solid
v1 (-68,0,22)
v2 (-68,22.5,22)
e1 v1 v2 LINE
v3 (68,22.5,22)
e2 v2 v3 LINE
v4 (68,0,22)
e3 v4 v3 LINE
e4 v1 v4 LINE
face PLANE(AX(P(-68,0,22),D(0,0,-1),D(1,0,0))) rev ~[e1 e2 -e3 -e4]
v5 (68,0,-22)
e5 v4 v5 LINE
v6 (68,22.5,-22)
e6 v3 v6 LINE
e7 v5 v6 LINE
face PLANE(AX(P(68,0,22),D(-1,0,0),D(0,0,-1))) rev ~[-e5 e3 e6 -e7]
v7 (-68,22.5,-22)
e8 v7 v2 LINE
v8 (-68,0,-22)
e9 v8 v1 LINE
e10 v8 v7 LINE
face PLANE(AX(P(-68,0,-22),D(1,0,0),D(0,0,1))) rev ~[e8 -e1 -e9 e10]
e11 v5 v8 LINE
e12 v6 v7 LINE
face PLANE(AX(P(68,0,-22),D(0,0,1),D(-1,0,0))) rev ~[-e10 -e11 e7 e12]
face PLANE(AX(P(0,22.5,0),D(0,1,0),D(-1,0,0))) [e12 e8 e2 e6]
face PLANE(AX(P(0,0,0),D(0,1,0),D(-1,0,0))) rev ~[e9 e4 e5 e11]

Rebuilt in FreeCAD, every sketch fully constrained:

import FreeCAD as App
import Part
import Sketcher
from FreeCAD import Vector

doc = App.newDocument("Part")
body = doc.addObject("PartDesign::Body", "Body")

sketch1 = doc.addObject("Sketcher::SketchObject", "Sketch")
body.addObject(sketch1)
sketch1.AttachmentSupport = (doc.XZ_Plane, [""])
sketch1.MapMode = "FlatFace"
sketch1.addGeometry([
    Part.LineSegment(Vector(-68, -22, 0), Vector(-68, 22, 0)),
    Part.LineSegment(Vector(-68, 22, 0), Vector(68, 22, 0)),
    Part.LineSegment(Vector(68, 22, 0), Vector(68, -22, 0)),
    Part.LineSegment(Vector(68, -22, 0), Vector(-68, -22, 0)),
], False)
sketch1.addConstraint([
    Sketcher.Constraint("Coincident", 0, 2, 1, 1),
    Sketcher.Constraint("Coincident", 1, 2, 2, 1),
    Sketcher.Constraint("Coincident", 2, 2, 3, 1),
    Sketcher.Constraint("Coincident", 3, 2, 0, 1),
    Sketcher.Constraint("Vertical", 0),
    Sketcher.Constraint("Horizontal", 1),
    Sketcher.Constraint("Vertical", 2),
    Sketcher.Constraint("Horizontal", 3),
    Sketcher.Constraint("Symmetric", 0, 2, 2, 2, -1, 1),
    Sketcher.Constraint("DistanceX", 1, 1, 1, 2, 136.0),
    Sketcher.Constraint("DistanceY", 0, 1, 0, 2, 44.0),
])
pad1 = doc.addObject("PartDesign::Pad", "Pad")
body.addObject(pad1)
pad1.Profile = sketch1
pad1.Length = 22.5
pad1.Reversed = True

doc.recompute()
